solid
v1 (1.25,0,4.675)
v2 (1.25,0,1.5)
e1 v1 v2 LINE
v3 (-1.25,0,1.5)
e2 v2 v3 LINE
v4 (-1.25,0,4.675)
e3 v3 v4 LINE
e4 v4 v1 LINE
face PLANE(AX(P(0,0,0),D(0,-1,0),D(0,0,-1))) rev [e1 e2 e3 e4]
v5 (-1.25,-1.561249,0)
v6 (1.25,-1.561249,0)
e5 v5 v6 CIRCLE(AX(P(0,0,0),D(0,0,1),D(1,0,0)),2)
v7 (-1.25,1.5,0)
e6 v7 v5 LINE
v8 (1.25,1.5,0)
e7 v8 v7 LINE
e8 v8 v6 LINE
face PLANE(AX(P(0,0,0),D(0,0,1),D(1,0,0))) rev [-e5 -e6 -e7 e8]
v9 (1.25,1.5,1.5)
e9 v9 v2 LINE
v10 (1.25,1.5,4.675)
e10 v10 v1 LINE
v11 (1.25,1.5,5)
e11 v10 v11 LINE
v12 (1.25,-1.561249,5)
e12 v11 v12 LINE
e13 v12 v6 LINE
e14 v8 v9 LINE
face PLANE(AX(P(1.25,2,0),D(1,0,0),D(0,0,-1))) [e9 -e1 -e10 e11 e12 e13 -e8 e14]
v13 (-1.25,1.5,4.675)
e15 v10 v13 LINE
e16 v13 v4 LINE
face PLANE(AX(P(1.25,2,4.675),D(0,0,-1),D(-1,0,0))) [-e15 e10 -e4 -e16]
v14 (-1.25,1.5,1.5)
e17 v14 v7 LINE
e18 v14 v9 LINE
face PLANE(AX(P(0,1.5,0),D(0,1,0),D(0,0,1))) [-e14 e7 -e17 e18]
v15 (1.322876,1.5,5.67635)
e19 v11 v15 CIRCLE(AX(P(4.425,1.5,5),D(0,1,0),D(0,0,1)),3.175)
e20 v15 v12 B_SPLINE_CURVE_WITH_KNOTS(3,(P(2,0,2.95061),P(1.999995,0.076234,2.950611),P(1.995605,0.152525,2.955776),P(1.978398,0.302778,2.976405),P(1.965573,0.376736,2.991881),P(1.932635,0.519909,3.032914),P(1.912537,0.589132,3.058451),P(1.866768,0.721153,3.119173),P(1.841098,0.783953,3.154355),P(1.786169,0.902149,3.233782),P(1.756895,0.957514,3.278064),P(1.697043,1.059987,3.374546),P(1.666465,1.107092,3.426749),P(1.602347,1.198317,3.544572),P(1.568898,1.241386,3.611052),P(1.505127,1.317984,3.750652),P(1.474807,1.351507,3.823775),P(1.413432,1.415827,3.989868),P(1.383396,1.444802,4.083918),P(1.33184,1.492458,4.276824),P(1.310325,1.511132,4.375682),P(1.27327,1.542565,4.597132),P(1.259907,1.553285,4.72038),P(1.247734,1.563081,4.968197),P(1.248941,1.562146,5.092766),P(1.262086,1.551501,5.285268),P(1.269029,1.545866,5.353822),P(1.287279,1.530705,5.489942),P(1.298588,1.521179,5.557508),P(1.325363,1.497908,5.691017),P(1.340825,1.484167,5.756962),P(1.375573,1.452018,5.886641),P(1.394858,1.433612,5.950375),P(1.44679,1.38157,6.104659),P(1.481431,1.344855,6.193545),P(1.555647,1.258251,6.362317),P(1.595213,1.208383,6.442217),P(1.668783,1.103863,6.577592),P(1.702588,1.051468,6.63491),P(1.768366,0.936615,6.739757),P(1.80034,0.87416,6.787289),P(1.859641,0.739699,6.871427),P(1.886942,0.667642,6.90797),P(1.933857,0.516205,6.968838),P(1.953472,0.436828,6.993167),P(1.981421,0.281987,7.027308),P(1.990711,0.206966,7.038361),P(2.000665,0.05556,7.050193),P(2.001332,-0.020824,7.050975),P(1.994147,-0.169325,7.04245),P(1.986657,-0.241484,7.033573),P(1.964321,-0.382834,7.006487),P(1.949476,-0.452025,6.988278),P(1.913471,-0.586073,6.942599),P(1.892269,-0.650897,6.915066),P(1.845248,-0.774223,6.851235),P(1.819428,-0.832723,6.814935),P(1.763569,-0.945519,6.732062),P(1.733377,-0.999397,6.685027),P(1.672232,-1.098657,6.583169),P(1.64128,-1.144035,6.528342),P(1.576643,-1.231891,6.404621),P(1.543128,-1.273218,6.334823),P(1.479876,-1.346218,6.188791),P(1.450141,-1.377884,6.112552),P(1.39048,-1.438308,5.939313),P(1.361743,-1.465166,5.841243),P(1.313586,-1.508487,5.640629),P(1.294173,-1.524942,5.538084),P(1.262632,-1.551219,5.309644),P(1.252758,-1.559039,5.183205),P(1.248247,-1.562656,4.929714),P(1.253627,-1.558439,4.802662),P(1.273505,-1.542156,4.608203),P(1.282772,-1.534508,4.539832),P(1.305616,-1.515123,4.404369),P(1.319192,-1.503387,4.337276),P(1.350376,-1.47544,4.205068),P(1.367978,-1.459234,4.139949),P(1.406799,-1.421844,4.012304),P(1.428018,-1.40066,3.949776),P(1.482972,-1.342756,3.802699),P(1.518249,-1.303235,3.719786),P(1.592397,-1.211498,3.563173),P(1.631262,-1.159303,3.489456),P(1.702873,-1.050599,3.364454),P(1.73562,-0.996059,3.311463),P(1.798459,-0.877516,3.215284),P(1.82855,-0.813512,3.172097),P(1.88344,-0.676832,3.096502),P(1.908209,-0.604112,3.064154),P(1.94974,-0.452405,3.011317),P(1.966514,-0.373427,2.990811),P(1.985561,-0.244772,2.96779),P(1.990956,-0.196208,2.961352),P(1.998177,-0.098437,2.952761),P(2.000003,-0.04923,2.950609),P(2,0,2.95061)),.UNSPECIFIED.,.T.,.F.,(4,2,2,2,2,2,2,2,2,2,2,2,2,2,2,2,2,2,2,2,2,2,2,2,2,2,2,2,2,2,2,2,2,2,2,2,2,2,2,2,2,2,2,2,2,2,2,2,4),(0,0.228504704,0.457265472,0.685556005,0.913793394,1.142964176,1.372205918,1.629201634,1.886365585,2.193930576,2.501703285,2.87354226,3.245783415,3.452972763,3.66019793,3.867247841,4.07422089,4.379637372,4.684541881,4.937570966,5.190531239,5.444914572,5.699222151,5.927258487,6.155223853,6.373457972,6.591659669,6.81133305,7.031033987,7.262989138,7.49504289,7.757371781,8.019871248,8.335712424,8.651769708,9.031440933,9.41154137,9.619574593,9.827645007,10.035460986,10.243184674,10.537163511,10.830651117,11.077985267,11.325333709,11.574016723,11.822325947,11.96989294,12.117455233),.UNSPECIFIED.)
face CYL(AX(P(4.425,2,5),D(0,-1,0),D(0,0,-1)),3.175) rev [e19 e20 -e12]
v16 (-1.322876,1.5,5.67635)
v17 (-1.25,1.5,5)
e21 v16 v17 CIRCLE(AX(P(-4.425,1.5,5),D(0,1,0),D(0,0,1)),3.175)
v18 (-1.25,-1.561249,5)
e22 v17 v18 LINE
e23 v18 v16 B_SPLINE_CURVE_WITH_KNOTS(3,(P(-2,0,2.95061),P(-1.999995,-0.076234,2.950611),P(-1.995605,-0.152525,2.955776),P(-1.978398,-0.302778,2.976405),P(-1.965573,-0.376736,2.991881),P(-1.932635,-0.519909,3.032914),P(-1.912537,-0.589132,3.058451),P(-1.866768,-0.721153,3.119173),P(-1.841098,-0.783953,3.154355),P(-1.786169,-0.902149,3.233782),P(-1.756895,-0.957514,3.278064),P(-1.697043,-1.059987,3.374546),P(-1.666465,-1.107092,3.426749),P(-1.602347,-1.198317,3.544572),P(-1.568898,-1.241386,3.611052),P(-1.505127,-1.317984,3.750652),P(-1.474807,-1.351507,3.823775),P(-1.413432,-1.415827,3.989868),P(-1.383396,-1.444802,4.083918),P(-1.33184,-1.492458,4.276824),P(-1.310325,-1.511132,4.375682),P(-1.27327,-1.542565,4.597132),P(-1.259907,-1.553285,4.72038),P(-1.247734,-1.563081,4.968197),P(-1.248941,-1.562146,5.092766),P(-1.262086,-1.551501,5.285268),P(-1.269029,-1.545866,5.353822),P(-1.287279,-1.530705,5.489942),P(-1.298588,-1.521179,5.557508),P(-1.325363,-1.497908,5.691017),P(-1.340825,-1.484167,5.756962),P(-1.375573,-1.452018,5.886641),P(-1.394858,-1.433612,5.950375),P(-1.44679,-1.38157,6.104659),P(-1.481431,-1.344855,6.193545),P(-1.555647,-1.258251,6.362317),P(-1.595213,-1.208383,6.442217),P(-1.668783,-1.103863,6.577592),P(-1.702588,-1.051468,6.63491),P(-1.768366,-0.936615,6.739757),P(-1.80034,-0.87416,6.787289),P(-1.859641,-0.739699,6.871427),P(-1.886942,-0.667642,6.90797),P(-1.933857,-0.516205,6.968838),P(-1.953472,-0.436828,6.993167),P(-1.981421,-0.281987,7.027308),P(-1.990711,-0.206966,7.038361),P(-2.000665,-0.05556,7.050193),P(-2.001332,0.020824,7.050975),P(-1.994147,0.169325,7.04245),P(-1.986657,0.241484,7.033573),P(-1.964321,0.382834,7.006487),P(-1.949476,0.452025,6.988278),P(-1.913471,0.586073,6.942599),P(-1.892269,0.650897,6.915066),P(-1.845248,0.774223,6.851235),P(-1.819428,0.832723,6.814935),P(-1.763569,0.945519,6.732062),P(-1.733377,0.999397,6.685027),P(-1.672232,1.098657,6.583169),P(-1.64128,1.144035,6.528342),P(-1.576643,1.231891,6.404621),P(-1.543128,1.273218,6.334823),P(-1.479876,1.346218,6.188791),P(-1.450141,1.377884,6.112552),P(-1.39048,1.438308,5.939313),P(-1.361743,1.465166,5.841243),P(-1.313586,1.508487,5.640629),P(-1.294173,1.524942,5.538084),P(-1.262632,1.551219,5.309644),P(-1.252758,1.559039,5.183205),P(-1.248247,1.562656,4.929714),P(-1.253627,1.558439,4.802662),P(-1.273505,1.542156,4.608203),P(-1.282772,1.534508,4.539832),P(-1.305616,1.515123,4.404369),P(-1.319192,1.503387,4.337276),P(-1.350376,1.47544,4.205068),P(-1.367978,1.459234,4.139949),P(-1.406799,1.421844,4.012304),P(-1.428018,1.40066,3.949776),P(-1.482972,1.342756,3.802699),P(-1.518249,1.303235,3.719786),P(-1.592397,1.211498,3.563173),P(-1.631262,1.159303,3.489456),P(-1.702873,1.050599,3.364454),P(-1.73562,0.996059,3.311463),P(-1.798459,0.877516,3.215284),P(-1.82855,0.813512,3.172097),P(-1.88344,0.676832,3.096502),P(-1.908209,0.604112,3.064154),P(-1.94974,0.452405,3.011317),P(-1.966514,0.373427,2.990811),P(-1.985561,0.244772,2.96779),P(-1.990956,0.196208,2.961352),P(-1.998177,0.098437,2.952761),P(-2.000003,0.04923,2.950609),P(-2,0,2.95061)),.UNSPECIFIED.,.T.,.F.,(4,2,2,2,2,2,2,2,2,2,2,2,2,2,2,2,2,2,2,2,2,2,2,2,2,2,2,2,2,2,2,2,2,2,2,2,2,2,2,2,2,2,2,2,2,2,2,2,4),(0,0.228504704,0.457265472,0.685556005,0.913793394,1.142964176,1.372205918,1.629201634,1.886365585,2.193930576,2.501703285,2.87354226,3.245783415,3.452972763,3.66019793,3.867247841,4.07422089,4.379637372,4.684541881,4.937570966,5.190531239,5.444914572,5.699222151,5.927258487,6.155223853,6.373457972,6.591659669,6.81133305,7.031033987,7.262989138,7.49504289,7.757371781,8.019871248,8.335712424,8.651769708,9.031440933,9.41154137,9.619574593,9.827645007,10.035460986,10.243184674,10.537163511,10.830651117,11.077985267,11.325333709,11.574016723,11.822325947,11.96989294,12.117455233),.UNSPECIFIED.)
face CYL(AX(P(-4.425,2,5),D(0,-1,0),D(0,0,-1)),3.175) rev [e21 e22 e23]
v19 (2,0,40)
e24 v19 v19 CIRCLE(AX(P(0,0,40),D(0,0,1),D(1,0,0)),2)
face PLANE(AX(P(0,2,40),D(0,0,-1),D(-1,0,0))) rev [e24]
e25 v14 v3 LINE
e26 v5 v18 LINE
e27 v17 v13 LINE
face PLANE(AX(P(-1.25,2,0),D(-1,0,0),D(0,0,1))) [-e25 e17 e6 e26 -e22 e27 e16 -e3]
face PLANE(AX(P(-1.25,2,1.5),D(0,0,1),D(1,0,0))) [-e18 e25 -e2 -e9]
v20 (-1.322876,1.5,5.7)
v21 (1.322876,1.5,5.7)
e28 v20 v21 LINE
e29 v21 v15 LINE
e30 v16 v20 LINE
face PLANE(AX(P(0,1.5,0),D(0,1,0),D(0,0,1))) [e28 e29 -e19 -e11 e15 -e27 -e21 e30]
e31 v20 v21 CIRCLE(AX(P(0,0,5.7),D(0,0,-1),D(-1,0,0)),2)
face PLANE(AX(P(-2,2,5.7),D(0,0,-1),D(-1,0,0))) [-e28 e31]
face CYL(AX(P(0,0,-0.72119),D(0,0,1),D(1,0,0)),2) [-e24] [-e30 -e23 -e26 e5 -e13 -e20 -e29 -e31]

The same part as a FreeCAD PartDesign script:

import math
import FreeCAD as App
import Part
import Sketcher
from FreeCAD import Vector


def add_polygon(sketch, points):
    """Adds a closed chain of lines whose ends are joined by coincident constraints."""
    first, n = sketch.GeometryCount, len(points)
    for a, b in zip(points, points[1:] + points[:1]):
        sketch.addGeometry(Part.LineSegment(App.Vector(*a, 0), App.Vector(*b, 0)), False)
    for i in range(n):
        sketch.addConstraint(Sketcher.Constraint("Coincident", first + i, 2, first + (i + 1) % n, 1))

doc = App.newDocument("Part")
body = doc.addObject("PartDesign::Body", "Body")

sketch1 = body.newObject("Sketcher::SketchObject", "Sketch")
sketch1.AttachmentSupport = (doc.getObject("YZ_Plane"), [""])
sketch1.MapMode = "FlatFace"
add_polygon(sketch1, [(2, 40), (0, 40), (0, 0), (2, 0)])
sketch1.addConstraint([
    Sketcher.Constraint("Horizontal", 0),
    Sketcher.Constraint("Vertical", 1),
    Sketcher.Constraint("Horizontal", 2),
    Sketcher.Constraint("Vertical", 3),
    Sketcher.Constraint("Coincident", 1, 2, -1, 1),
    Sketcher.Constraint("DistanceX", 0, 2, 0, 1, 2.0),
    Sketcher.Constraint("DistanceY", 1, 2, 1, 1, 40.0),
])
revolution = body.newObject("PartDesign::Revolution", "Revolution")
revolution.Profile = sketch1
revolution.ReferenceAxis = (sketch1, ["V_Axis"])
revolution.Angle = 360

sketch2 = body.newObject("Sketcher::SketchObject", "Sketch001")
sketch2.AttachmentSupport = (doc.getObject("XZ_Plane"), [""])
sketch2.MapMode = "FlatFace"
sketch2.addGeometry([
    Part.LineSegment(Vector(-1.25, 5, 0), Vector(-1.25, 0, 0)),
    Part.LineSegment(Vector(-1.25, 0, 0), Vector(-4.425, 0, 0)),
    Part.LineSegment(Vector(-4.425, 0, 0), Vector(-4.425, 8.175, 0)),
    Part.ArcOfCircle(Part.Circle(Vector(-4.425, 5, 0), Vector(0, 0, 1), 3.175), math.radians(0), math.radians(90)),
    Part.LineSegment(Vector(1.25, 0, 0), Vector(1.25, 5, 0)),
    Part.ArcOfCircle(Part.Circle(Vector(4.425, 5, 0), Vector(0, 0, 1), 3.175), math.radians(90), math.radians(180)),
    Part.LineSegment(Vector(4.425, 8.175, 0), Vector(4.425, 0, 0)),
    Part.LineSegment(Vector(4.425, 0, 0), Vector(1.25, 0, 0)),
], False)
sketch2.addConstraint([
    Sketcher.Constraint("Coincident", 0, 2, 1, 1),
    Sketcher.Constraint("Coincident", 1, 2, 2, 1),
    Sketcher.Constraint("Coincident", 2, 2, 3, 2),
    Sketcher.Constraint("Tangent", 3, 1, 0, 1),
    Sketcher.Constraint("Tangent", 4, 2, 5, 2),
    Sketcher.Constraint("Coincident", 5, 1, 6, 1),
    Sketcher.Constraint("Coincident", 6, 2, 7, 1),
    Sketcher.Constraint("Coincident", 7, 2, 4, 1),
    Sketcher.Constraint("Vertical", 0),
    Sketcher.Constraint("Horizontal", 1),
    Sketcher.Constraint("Vertical", 2),
    Sketcher.Constraint("Vertical", 4),
    Sketcher.Constraint("Vertical", 6),
    Sketcher.Constraint("Horizontal", 7),
    Sketcher.Constraint("Equal", 3, 5),
    Sketcher.Constraint("Symmetric", 1, 2, 6, 2, -1, 1),
    Sketcher.Constraint("Symmetric", 3, 3, 5, 3, -2),
    Sketcher.Constraint("PointOnObject", 0, 2, -1),
    Sketcher.Constraint("Vertical", 3, 3, 1, 2),
    Sketcher.Constraint("DistanceY", 0, 2, 0, 1, 5.0),
    Sketcher.Constraint("Radius", 3, 3.175),
    Sketcher.Constraint("DistanceX", 3, 1, 4, 2, 2.5),
])
pocket1 = body.newObject("PartDesign::Pocket", "Pocket")
pocket1.Profile = sketch2
pocket1.Type = "ThroughAll"
pocket1.Midplane = True

sketch3 = body.newObject("Sketcher::SketchObject", "Sketch002")
sketch3.AttachmentSupport = (doc.getObject("XZ_Plane"), [""])
sketch3.MapMode = "FlatFace"
sketch3.AttachmentOffset = App.Placement(Vector(0, 0, -1.5), App.Rotation())
add_polygon(sketch3, [(-2, 0), (-2, 5.7), (2, 5.7), (2, 0)])
sketch3.addConstraint([
    Sketcher.Constraint("Vertical", 0),
    Sketcher.Constraint("Horizontal", 1),
    Sketcher.Constraint("Vertical", 2),
    Sketcher.Constraint("Horizontal", 3),
    Sketcher.Constraint("Symmetric", 2, 2, 3, 2, -1, 1),
    Sketcher.Constraint("DistanceX", 1, 1, 1, 2, 4.0),
    Sketcher.Constraint("DistanceY", 0, 1, 0, 2, 5.7),
])
pocket2 = body.newObject("PartDesign::Pocket", "Pocket001")
pocket2.Profile = sketch3
pocket2.Type = "ThroughAll"

sketch4 = body.newObject("Sketcher::SketchObject", "Sketch003")
sketch4.AttachmentSupport = (doc.getObject("XZ_Plane"), [""])
sketch4.MapMode = "FlatFace"
add_polygon(sketch4, [(-1.25, 1.5), (-1.25, 4.675), (1.25, 4.675), (1.25, 1.5)])
sketch4.addConstraint([
    Sketcher.Constraint("Vertical", 0),
    Sketcher.Constraint("Horizontal", 1),
    Sketcher.Constraint("Vertical", 2),
    Sketcher.Constraint("Horizontal", 3),
    Sketcher.Constraint("DistanceX", 1, 1, 1, 2, 2.5),
    Sketcher.Constraint("DistanceY", -1, 1, 2, 2, 1.5),
    Sketcher.Constraint("DistanceY", 0, 1, 0, 2, 3.175),
    Sketcher.Constraint("DistanceX", 0, 2, -1, 1, 1.25),
])
pocket3 = body.newObject("PartDesign::Pocket", "Pocket002")
pocket3.Profile = sketch4
pocket3.Type = "ThroughAll"

doc.recompute()
